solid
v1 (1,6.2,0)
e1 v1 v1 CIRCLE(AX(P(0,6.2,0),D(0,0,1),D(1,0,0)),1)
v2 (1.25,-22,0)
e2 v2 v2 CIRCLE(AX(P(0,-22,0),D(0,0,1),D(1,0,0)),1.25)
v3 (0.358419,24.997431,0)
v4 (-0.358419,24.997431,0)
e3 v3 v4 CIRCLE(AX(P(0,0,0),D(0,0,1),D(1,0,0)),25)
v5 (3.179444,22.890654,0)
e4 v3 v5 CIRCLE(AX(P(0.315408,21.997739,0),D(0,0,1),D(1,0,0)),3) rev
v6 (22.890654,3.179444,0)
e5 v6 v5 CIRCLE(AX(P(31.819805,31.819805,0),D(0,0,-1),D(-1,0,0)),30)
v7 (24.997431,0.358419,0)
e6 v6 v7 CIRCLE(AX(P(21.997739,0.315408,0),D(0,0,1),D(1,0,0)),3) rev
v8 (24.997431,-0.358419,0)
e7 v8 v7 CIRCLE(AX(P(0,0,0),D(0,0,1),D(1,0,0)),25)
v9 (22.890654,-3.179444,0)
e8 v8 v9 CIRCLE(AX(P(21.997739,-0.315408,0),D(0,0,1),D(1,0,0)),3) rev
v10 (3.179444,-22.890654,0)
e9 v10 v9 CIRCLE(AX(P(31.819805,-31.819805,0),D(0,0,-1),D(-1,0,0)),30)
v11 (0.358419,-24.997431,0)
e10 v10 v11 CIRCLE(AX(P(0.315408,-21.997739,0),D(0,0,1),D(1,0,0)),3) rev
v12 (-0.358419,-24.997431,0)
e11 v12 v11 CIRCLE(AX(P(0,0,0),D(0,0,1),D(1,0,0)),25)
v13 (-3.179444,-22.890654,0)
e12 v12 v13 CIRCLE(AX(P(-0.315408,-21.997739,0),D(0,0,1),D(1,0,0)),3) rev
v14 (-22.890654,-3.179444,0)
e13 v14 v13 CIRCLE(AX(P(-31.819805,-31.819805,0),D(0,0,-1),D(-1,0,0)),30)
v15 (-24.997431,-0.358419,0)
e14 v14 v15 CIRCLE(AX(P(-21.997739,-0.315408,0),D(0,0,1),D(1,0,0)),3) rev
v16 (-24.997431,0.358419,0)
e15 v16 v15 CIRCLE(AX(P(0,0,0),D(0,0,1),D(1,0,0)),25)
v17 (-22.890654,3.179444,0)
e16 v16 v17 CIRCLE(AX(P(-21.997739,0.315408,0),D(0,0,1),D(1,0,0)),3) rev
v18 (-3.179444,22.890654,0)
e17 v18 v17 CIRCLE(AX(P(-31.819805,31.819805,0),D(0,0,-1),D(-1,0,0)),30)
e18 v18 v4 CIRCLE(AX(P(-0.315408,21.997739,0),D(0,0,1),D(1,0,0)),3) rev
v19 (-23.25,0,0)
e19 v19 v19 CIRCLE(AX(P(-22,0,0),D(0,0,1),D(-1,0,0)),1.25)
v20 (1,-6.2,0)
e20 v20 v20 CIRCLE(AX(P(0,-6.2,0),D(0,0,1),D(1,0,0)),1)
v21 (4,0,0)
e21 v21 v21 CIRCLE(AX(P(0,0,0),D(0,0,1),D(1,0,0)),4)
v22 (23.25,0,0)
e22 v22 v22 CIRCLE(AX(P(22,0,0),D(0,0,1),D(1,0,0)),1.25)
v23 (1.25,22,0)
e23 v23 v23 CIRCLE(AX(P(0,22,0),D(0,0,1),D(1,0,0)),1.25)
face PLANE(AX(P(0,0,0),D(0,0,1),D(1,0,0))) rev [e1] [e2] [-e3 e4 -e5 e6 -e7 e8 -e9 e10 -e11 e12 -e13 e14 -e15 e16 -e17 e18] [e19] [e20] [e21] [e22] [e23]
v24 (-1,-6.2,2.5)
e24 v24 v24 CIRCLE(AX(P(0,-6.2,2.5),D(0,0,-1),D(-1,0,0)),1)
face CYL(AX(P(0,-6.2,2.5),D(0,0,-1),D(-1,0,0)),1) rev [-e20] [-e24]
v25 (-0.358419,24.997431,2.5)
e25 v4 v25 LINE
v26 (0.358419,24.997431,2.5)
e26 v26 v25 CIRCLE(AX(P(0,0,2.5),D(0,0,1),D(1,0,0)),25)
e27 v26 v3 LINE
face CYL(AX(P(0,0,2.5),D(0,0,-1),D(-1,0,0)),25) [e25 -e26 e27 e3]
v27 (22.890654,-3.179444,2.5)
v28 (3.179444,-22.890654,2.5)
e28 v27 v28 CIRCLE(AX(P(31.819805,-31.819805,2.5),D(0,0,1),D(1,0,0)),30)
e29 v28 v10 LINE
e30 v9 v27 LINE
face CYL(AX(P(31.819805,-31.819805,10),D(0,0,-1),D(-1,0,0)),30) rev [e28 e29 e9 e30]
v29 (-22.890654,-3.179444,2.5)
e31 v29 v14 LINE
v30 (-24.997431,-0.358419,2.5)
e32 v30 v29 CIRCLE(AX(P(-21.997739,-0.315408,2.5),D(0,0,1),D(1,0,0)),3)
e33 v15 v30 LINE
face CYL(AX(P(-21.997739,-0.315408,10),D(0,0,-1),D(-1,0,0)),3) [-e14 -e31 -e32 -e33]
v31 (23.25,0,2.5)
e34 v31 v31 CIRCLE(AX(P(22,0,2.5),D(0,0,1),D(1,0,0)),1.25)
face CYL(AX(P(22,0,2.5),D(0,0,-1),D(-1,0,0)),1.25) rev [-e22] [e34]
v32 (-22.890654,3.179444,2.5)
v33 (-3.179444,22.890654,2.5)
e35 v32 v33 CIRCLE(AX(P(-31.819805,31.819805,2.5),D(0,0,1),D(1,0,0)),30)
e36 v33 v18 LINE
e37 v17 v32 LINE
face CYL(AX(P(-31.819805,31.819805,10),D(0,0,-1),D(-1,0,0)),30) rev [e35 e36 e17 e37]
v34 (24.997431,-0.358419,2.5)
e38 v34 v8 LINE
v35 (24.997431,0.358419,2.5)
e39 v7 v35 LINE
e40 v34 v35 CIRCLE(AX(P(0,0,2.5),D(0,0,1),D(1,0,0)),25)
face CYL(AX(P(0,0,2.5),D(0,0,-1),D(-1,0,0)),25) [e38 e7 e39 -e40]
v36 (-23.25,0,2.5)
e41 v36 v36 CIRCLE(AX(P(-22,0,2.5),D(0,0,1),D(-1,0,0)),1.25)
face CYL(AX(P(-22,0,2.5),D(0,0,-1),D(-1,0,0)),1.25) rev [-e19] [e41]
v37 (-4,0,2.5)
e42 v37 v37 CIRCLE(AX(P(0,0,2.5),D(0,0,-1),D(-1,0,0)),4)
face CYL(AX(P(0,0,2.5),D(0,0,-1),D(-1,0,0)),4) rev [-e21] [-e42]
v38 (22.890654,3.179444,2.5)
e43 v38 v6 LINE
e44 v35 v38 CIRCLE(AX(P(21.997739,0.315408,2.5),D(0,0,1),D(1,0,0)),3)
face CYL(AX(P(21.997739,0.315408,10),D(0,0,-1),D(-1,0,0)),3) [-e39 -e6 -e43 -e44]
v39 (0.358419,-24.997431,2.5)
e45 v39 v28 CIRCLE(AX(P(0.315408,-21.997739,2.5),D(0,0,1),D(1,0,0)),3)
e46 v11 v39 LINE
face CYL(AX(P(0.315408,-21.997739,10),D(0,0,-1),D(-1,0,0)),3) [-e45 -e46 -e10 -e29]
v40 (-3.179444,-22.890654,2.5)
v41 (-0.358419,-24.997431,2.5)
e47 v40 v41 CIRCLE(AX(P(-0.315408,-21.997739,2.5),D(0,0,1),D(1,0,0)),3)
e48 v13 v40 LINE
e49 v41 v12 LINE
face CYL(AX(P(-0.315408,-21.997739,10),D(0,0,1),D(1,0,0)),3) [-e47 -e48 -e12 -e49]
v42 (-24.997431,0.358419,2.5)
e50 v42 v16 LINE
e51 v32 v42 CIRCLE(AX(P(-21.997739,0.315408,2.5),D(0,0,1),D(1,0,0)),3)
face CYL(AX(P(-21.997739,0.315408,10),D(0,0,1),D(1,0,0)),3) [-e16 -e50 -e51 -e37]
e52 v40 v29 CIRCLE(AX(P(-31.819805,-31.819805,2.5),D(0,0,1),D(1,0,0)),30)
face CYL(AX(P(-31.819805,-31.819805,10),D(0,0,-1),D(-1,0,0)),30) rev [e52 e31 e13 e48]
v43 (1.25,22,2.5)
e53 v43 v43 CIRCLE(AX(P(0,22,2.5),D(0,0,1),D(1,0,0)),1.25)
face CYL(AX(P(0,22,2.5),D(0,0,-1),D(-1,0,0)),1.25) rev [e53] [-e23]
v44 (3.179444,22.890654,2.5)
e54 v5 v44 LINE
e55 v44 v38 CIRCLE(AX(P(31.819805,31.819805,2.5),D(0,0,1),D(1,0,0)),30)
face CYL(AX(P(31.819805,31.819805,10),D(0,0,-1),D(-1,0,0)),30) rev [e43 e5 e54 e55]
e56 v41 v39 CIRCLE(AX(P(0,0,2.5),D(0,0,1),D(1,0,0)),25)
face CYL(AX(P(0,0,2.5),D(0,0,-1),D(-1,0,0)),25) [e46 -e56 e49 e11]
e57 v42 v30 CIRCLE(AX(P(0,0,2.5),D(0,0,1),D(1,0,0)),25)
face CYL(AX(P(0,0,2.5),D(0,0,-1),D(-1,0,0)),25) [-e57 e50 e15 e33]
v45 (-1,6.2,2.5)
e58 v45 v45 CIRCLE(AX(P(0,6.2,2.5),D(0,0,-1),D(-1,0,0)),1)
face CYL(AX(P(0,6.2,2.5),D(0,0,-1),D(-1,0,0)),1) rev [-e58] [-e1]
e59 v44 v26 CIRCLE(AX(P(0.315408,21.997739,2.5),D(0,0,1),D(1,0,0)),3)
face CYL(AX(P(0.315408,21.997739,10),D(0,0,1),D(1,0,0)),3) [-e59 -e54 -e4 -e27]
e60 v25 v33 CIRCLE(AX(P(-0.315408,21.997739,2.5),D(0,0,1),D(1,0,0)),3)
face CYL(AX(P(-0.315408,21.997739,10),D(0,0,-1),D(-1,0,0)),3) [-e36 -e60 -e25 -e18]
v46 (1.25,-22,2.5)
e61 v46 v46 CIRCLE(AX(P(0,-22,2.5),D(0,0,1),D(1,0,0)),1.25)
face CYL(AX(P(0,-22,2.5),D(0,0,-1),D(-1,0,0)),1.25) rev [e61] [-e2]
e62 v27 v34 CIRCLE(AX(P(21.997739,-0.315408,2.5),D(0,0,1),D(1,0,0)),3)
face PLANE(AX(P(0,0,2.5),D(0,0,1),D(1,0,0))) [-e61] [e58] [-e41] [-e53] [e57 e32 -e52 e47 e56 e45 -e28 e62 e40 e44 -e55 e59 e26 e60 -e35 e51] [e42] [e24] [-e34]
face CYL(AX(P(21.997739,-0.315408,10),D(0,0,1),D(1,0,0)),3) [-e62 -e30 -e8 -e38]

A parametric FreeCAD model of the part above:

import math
import FreeCAD as App
import Part
import Sketcher
Q = App.Units.Quantity


def edges_at(feature, points):
    """Names of the edges that pass closest to the given points."""
    edges = feature.Shape.Edges
    near = lambda p: min(range(len(edges)), key=lambda i: edges[i].distToShape(Part.Vertex(*p))[0])
    return sorted({f"Edge{near(p) + 1}" for p in points})

doc = App.newDocument("Part")
body = doc.addObject("PartDesign::Body", "Body")

# Sketch on XY plane
sketch1 = doc.addObject("Sketcher::SketchObject", "Sketch")
body.addObject(sketch1)
sketch1.AttachmentSupport = (doc.XY_Plane, [""])
sketch1.MapMode = "FlatFace"
sketch1.addGeometry([
    Part.Circle(App.Vector(0, 0, 0), App.Vector(0, 0, 1), 25),  # 0
    Part.Circle(App.Vector(0, -22, 0), App.Vector(0, 0, 1), 1.2),  # 1
    Part.Circle(App.Vector(-22, 0, 0), App.Vector(0, 0, 1), 1.2),  # 2
    Part.Circle(App.Vector(22, 0, 0), App.Vector(0, 0, 1), 1.2),  # 3
    Part.Circle(App.Vector(0, 22, 0), App.Vector(0, 0, 1), 1.2),  # 4
], False)
sketch1.addConstraint([
    Sketcher.Constraint("Coincident", 0, 3, -1, 1),
    Sketcher.Constraint("Equal", 1, 2),
    Sketcher.Constraint("Equal", 2, 3),
    Sketcher.Constraint("Equal", 3, 4),
    Sketcher.Constraint("Symmetric", 2, 3, 3, 3, -1, 1),
    Sketcher.Constraint("Symmetric", 1, 3, 4, 3, -1, 1),
    Sketcher.Constraint("PointOnObject", 1, 3, -2),
    Sketcher.Constraint("PointOnObject", 2, 3, -1),
    Sketcher.Constraint("Diameter", 0, Q("50 mm")),
    Sketcher.Constraint("Diameter", 1, Q("2.5 mm")),
    Sketcher.Constraint("DistanceY", 1, 3, -1, 1, Q("22 mm")),
    Sketcher.Constraint("DistanceX", 2, 3, -1, 1, Q("22 mm")),
])
pad1 = doc.addObject("PartDesign::Pad", "Pad")
body.addObject(pad1)
pad1.Profile = sketch1
pad1.Length = 2.5

# Sketch on XY plane
sketch2 = doc.addObject("Sketcher::SketchObject", "Sketch001")
body.addObject(sketch2)
sketch2.AttachmentSupport = (doc.XY_Plane, [""])
sketch2.MapMode = "FlatFace"
sketch2.addGeometry([
    Part.Circle(App.Vector(0, 6.2, 0), App.Vector(0, 0, 1), 1),
    Part.Circle(App.Vector(0, 0, 0), App.Vector(0, 0, 1), 4),
    Part.Circle(App.Vector(0, -6.2, 0), App.Vector(0, 0, 1), 1),
], False)
sketch2.addConstraint([
    Sketcher.Constraint("Coincident", 1, 3, -1, 1),
    Sketcher.Constraint("Equal", 0, 2),
    Sketcher.Constraint("Symmetric", 0, 3, 2, 3, -1, 1),
    Sketcher.Constraint("PointOnObject", 0, 3, -2),
    Sketcher.Constraint("Diameter", 0, Q("2 mm")),
    Sketcher.Constraint("Diameter", 1, Q("8 mm")),
    Sketcher.Constraint("DistanceY", -1, 1, 0, 3, Q("6.2 mm")),
])
pocket1 = doc.addObject("PartDesign::Pocket", "Pocket")
body.addObject(pocket1)
pocket1.Profile = sketch2
pocket1.Type = "ThroughAll"
pocket1.Midplane = True

# Sketch on XY plane
sketch3 = doc.addObject("Sketcher::SketchObject", "Sketch002")
body.addObject(sketch3)
sketch3.AttachmentSupport = (doc.XY_Plane, [""])
sketch3.MapMode = "FlatFace"
sketch3.addGeometry([
    Part.ArcOfCircle(Part.Circle(App.Vector(0, 0, 0), App.Vector(0, 0, 1), 25), math.radians(6), math.radians(84)),  # 0
    Part.ArcOfCircle(Part.Circle(App.Vector(32, 32, 0), App.Vector(0, 0, 1), 30), math.radians(-167), math.radians(-103)),  # 1
    Part.ArcOfCircle(Part.Circle(App.Vector(32, -32, 0), App.Vector(0, 0, 1), 30), math.radians(103), math.radians(167)),  # 2
    Part.ArcOfCircle(Part.Circle(App.Vector(0, 0, 0), App.Vector(0, 0, 1), 25), math.radians(-84), math.radians(-6)),  # 3
    Part.ArcOfCircle(Part.Circle(App.Vector(-32, -32, 0), App.Vector(0, 0, 1), 30), math.radians(13), math.radians(77)),  # 4
    Part.ArcOfCircle(Part.Circle(App.Vector(0, 0, 0), App.Vector(0, 0, 1), 25), math.radians(-174), math.radians(-96)),  # 5
    Part.ArcOfCircle(Part.Circle(App.Vector(0, 0, 0), App.Vector(0, 0, 1), 25), math.radians(96), math.radians(174)),  # 6
    Part.ArcOfCircle(Part.Circle(App.Vector(-32, 32, 0), App.Vector(0, 0, 1), 30), math.radians(-77), math.radians(-13)),  # 7
], False)
sketch3.addConstraint([
    Sketcher.Constraint("Coincident", 0, 1, 1, 2),
    Sketcher.Constraint("Coincident", 1, 1, 0, 2),
    Sketcher.Constraint("Coincident", 2, 1, 3, 2),
    Sketcher.Constraint("Coincident", 3, 1, 2, 2),
    Sketcher.Constraint("Coincident", 4, 1, 5, 2),
    Sketcher.Constraint("Coincident", 5, 1, 4, 2),
    Sketcher.Constraint("Coincident", 6, 1, 7, 2),
    Sketcher.Constraint("Coincident", 7, 1, 6, 2),
    Sketcher.Constraint("Coincident", 0, 3, -1, 1),
    Sketcher.Constraint("Coincident", 3, 3, -1, 1),
    Sketcher.Constraint("Coincident", 5, 3, -1, 1),
    Sketcher.Constraint("Coincident", 6, 3, -1, 1),
    Sketcher.Constraint("Equal", 1, 2),
    Sketcher.Constraint("Equal", 0, 3),
    Sketcher.Constraint("Equal", 2, 4),
    Sketcher.Constraint("Equal", 3, 5),
    Sketcher.Constraint("Equal", 5, 6),
    Sketcher.Constraint("Equal", 4, 7),
    Sketcher.Constraint("Symmetric", 1, 3, 4, 3, -1, 1),
    Sketcher.Constraint("Symmetric", 2, 3, 7, 3, -1, 1),
    Sketcher.Constraint("Symmetric", 2, 3, 4, 3, -2),
    Sketcher.Constraint("Radius", 0, Q("25 mm")),
    Sketcher.Constraint("Radius", 1, Q("30 mm")),
    Sketcher.Constraint("DistanceX", -1, 1, 0, 1, Q("24.86041 mm")),
    Sketcher.Constraint("DistanceY", 3, 1, -1, 1, Q("24.86041 mm")),
])
pocket2 = doc.addObject("PartDesign::Pocket", "Pocket001")
body.addObject(pocket2)
pocket2.Profile = sketch3
pocket2.Length = 10
pocket2.Reversed = True
doc.recompute()

fillet = doc.addObject("PartDesign::Fillet", "Fillet")
body.addObject(fillet)
fillet.Base = (pocket2, edges_at(pocket2, [
    (2.638, 24.86, 1.25),
    (24.86, 2.638, 1.25),
    (24.86, -2.638, 1.25),
    (2.638, -24.86, 1.25),
    (-2.638, -24.86, 1.25),
    (-24.86, -2.638, 1.25),
    (-24.86, 2.638, 1.25),
    (-2.638, 24.86, 1.25),
]))
fillet.Radius = 3

doc.recompute()
